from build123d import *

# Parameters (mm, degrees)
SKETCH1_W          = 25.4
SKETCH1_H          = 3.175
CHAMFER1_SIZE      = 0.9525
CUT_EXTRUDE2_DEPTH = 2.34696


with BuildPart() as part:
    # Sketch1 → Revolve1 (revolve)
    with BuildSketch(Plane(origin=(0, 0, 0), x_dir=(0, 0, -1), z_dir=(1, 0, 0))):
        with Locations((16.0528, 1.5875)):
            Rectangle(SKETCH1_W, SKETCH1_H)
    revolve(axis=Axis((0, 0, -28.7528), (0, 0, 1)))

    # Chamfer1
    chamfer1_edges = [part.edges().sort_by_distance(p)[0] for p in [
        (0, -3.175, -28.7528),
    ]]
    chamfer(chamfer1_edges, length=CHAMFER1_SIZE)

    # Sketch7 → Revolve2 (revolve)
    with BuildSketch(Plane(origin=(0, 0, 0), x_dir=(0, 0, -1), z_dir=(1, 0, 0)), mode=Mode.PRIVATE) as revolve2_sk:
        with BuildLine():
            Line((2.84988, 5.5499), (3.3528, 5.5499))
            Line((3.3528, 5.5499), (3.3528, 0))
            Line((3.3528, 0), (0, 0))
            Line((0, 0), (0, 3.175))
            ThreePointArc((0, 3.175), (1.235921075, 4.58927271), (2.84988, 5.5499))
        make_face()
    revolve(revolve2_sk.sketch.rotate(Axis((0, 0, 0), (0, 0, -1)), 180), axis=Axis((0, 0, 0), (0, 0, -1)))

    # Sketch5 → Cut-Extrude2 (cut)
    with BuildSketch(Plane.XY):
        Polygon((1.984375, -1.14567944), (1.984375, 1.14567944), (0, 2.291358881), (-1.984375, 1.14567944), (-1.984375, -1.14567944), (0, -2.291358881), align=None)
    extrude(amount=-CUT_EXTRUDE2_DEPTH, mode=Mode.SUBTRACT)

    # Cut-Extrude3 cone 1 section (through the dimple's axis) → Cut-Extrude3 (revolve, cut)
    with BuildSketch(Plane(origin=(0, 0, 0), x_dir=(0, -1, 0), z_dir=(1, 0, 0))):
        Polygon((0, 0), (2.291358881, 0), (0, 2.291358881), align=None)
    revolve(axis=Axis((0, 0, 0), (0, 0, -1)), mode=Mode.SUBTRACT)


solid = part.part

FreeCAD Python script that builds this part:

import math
import FreeCAD as App
import Part
import Sketcher
from FreeCAD import Vector
Q = App.Units.Quantity


def edges_at(feature, points):
    """Names of the edges that pass closest to the given points."""
    edges = feature.Shape.Edges
    near = lambda p: min(range(len(edges)), key=lambda i: edges[i].distToShape(Part.Vertex(*p))[0])
    return sorted({f"Edge{near(p) + 1}" for p in points})


def add_polygon(sketch, points):
    """Adds a closed chain of lines whose ends are joined by coincident constraints."""
    first, n = sketch.GeometryCount, len(points)
    for a, b in zip(points, points[1:] + points[:1]):
        sketch.addGeometry(Part.LineSegment(App.Vector(*a, 0), App.Vector(*b, 0)), False)
    for i in range(n):
        sketch.addConstraint(Sketcher.Constraint("Coincident", first + i, 2, first + (i + 1) % n, 1))

doc = App.newDocument("Part")
body = doc.addObject("PartDesign::Body", "Body")

sketch1 = body.newObject("Sketcher::SketchObject", "Sketch")
sketch1.AttachmentSupport = (doc.getObject("YZ_Plane"), [""])
sketch1.MapMode = "FlatFace"
add_polygon(sketch1, [(3.2, -3.4), (0, -3.4), (0, -28.8), (3.2, -28.8)])
sketch1.addConstraint([
    Sketcher.Constraint("Horizontal", 0),
    Sketcher.Constraint("Vertical", 1),
    Sketcher.Constraint("Horizontal", 2),
    Sketcher.Constraint("Vertical", 3),
    Sketcher.Constraint("PointOnObject", 0, 2, -2),
    Sketcher.Constraint("DistanceY", 1, 2, 1, 1, Q("1 in")),
    Sketcher.Constraint("DistanceX", 0, 2, 0, 1, Q("0.125 in")),
    Sketcher.Constraint("DistanceY", 0, 2, -1, 1, Q("0.132 in")),
])
revolution = body.newObject("PartDesign::Revolution", "Revolution")
revolution.Profile = sketch1
revolution.ReferenceAxis = (sketch1, ["V_Axis"])
revolution.Angle = 360
doc.recompute()

chamfer = body.newObject("PartDesign::Chamfer", "Chamfer")
chamfer.Base = (revolution, edges_at(revolution, [(0, -3.175, -28.753)]))
chamfer.Size = Q("0.0375 in")

sketch2 = body.newObject("Sketcher::SketchObject", "Sketch001")
sketch2.AttachmentSupport = (doc.getObject("YZ_Plane"), [""])
sketch2.MapMode = "FlatFace"
sketch2.addGeometry([
    Part.LineSegment(Vector(5.5, -3.4, 0), Vector(5.5, -2.8, 0)),
    Part.ArcOfCircle(Part.Circle(Vector(0, -5.1, 0), Vector(0, 0, 1), 6), math.radians(22), math.radians(58)),
    Part.LineSegment(Vector(3.2, 0, 0), Vector(0, 0, 0)),
    Part.LineSegment(Vector(0, 0, 0), Vector(0, -3.4, 0)),
    Part.LineSegment(Vector(0, -3.4, 0), Vector(5.5, -3.4, 0)),
], False)
sketch2.addConstraint([
    Sketcher.Constraint("Coincident", 0, 2, 1, 1),
    Sketcher.Constraint("Coincident", 1, 2, 2, 1),
    Sketcher.Constraint("Coincident", 2, 2, 3, 1),
    Sketcher.Constraint("Coincident", 3, 2, 4, 1),
    Sketcher.Constraint("Coincident", 4, 2, 0, 1),
    Sketcher.Constraint("Vertical", 0),
    Sketcher.Constraint("Horizontal", 2),
    Sketcher.Constraint("Vertical", 3),
    Sketcher.Constraint("Horizontal", 4),
    Sketcher.Constraint("Coincident", 2, 2, -1, 1),
    Sketcher.Constraint("PointOnObject", 1, 3, -2),
    Sketcher.Constraint("DistanceX", 2, 2, 2, 1, Q("0.125 in")),
    Sketcher.Constraint("DistanceY", 3, 2, 3, 1, Q("0.132 in")),
    Sketcher.Constraint("DistanceX", 4, 1, 4, 2, Q("0.2185 in")),
    Sketcher.Constraint("DistanceY", 0, 1, 0, 2, Q("0.0198 in")),
])
revolution2 = body.newObject("PartDesign::Revolution", "Revolution001")
revolution2.Profile = sketch2
revolution2.ReferenceAxis = (sketch2, ["V_Axis"])
revolution2.Angle = 360

sketch3 = body.newObject("Sketcher::SketchObject", "Sketch002")
sketch3.AttachmentSupport = (doc.getObject("XY_Plane"), [""])
sketch3.MapMode = "FlatFace"
add_polygon(sketch3, [(2, -1.1), (2, 1.1), (0, 2.3), (-2, 1.1), (-2, -1.1), (0, -2.3)])
sketch3.addConstraint([
    Sketcher.Constraint("Vertical", 0),
    Sketcher.Constraint("Vertical", 3),
    Sketcher.Constraint("Symmetric", 0, 2, 3, 2, -1, 1),
    Sketcher.Constraint("Symmetric", 1, 2, 4, 2, -1, 1),
    Sketcher.Constraint("PointOnObject", 1, 2, -2),
    Sketcher.Constraint("Parallel", 2, 5),
    Sketcher.Constraint("Horizontal", 0, 2, 2, 2),
    Sketcher.Constraint("Angle", 1, Q("150 deg")),
    Sketcher.Constraint("DistanceX", -1, 1, 0, 2, Q("0.078125 in")),
    Sketcher.Constraint("DistanceY", 0, 1, 0, 2, Q("2.291359 mm")),
])
pocket1 = body.newObject("PartDesign::Pocket", "Pocket")
pocket1.Profile = sketch3
pocket1.Length = Q("0.0924 in")

sketch4 = body.newObject("Sketcher::SketchObject", "Sketch003")
sketch4.AttachmentSupport = (doc.getObject("YZ_Plane"), [""])
sketch4.MapMode = "FlatFace"
add_polygon(sketch4, [(0, 0), (-2.3, 0), (0, -2.3)])
sketch4.addConstraint([
    Sketcher.Constraint("Horizontal", 0),
    Sketcher.Constraint("Vertical", 2),
    Sketcher.Constraint("Coincident", 2, 2, -1, 1),
    Sketcher.Constraint("Equal", 0, 2),
    Sketcher.Constraint("DistanceX", 0, 2, 0, 1, Q("2.291359 mm")),
])
groove = body.newObject("PartDesign::Groove", "Groove")
groove.Profile = sketch4
groove.ReferenceAxis = (sketch4, ["V_Axis"])
groove.Angle = 360

doc.recompute()
